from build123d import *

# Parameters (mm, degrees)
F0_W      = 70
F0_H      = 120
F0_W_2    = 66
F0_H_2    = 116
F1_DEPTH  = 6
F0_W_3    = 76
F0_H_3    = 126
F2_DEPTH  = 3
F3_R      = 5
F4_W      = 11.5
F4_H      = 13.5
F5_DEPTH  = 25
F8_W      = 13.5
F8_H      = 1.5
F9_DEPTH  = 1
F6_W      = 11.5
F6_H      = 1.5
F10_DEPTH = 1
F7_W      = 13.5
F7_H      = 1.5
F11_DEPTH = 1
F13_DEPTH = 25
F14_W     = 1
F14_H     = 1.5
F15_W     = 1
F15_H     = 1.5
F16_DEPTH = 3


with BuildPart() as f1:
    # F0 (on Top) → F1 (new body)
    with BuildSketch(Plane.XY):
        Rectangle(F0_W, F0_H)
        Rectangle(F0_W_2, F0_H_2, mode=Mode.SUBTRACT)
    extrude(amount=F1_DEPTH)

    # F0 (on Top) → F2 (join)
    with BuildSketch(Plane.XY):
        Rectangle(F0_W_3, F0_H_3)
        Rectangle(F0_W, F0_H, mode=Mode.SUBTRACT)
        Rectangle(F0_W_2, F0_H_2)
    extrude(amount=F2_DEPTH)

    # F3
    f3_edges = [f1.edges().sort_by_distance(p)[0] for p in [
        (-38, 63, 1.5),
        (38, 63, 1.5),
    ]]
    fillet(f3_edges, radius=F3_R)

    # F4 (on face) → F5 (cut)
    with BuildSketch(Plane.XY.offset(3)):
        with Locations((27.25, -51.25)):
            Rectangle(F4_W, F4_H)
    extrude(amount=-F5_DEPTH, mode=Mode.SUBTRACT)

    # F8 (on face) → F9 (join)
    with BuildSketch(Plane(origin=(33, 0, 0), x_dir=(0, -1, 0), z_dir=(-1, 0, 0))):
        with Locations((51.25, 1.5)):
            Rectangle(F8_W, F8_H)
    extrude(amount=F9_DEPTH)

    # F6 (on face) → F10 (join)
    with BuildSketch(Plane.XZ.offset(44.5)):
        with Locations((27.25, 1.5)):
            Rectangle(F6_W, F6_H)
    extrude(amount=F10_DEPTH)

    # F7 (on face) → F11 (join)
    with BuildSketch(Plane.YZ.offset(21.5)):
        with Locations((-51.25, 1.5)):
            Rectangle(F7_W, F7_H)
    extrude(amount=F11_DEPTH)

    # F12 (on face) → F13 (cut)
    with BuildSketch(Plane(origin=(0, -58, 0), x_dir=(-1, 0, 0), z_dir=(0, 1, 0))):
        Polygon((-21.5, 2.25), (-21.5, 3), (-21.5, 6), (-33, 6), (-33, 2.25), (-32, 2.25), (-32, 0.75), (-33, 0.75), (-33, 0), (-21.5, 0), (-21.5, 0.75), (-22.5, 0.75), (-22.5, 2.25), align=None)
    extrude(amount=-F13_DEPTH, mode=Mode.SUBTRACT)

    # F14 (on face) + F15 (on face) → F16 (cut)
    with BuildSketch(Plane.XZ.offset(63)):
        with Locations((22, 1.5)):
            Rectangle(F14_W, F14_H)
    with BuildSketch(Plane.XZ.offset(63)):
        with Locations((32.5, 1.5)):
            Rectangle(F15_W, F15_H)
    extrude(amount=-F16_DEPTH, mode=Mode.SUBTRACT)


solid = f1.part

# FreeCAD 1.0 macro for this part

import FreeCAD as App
import Part
import Sketcher

V = App.Vector


def edges_at(feature, points):
    """Names of the edges that pass closest to the given points."""
    edges = feature.Shape.Edges
    near = lambda p: min(range(len(edges)), key=lambda i: edges[i].distToShape(Part.Vertex(*p))[0])
    return sorted({f"Edge{near(p) + 1}" for p in points})

doc = App.newDocument("Part")
body = doc.addObject("PartDesign::Body", "Body")

sketch1 = body.newObject("Sketcher::SketchObject", "Sketch")
sketch1.AttachmentSupport = (doc.getObject("XY_Plane"), [""])
sketch1.MapMode = "FlatFace"
sketch1.addGeometry([
    Part.LineSegment(V(-35, 60, 0), V(-35, -60, 0)),
    Part.LineSegment(V(-35, -60, 0), V(35, -60, 0)),
    Part.LineSegment(V(35, -60, 0), V(35, 60, 0)),
    Part.LineSegment(V(35, 60, 0), V(-35, 60, 0)),
    Part.LineSegment(V(33, -58, 0), V(-33, -58, 0)),
    Part.LineSegment(V(-33, -58, 0), V(-33, 58, 0)),
    Part.LineSegment(V(-33, 58, 0), V(33, 58, 0)),
    Part.LineSegment(V(33, 58, 0), V(33, -58, 0)),
], False)
sketch1.addConstraint([
    Sketcher.Constraint("Coincident", 0, 2, 1, 1),
    Sketcher.Constraint("Coincident", 1, 2, 2, 1),
    Sketcher.Constraint("Coincident", 2, 2, 3, 1),
    Sketcher.Constraint("Coincident", 3, 2, 0, 1),
    Sketcher.Constraint("Coincident", 4, 2, 5, 1),
    Sketcher.Constraint("Coincident", 5, 2, 6, 1),
    Sketcher.Constraint("Coincident", 6, 2, 7, 1),
    Sketcher.Constraint("Coincident", 7, 2, 4, 1),
    Sketcher.Constraint("Vertical", 0),
    Sketcher.Constraint("Horizontal", 1),
    Sketcher.Constraint("Vertical", 2),
    Sketcher.Constraint("Horizontal", 3),
    Sketcher.Constraint("Horizontal", 4),
    Sketcher.Constraint("Vertical", 5),
    Sketcher.Constraint("Horizontal", 6),
    Sketcher.Constraint("Vertical", 7),
    Sketcher.Constraint("Symmetric", 0, 2, 2, 2, -1, 1),
    Sketcher.Constraint("Symmetric", 4, 2, 6, 2, -1, 1),
    Sketcher.Constraint("DistanceX", 1, 1, 1, 2, 70.0),
    Sketcher.Constraint("DistanceX", 4, 2, 4, 1, 66.0),
    Sketcher.Constraint("DistanceY", 0, 2, 0, 1, 120.0),
    Sketcher.Constraint("DistanceY", 5, 1, 5, 2, 116.0),
])
pad1 = body.newObject("PartDesign::Pad", "Pad")
pad1.Profile = sketch1
pad1.Length = 6

sketch2 = body.newObject("Sketcher::SketchObject", "Sketch001")
sketch2.AttachmentSupport = (doc.getObject("XY_Plane"), [""])
sketch2.MapMode = "FlatFace"
sketch2.addGeometry([
    Part.LineSegment(V(-38, 63, 0), V(-38, -63, 0)),
    Part.LineSegment(V(-38, -63, 0), V(38, -63, 0)),
    Part.LineSegment(V(38, -63, 0), V(38, 63, 0)),
    Part.LineSegment(V(38, 63, 0), V(-38, 63, 0)),
    Part.LineSegment(V(35, -60, 0), V(-35, -60, 0)),
    Part.LineSegment(V(-35, -60, 0), V(-35, 60, 0)),
    Part.LineSegment(V(-35, 60, 0), V(35, 60, 0)),
    Part.LineSegment(V(35, 60, 0), V(35, -60, 0)),
    Part.LineSegment(V(-33, 58, 0), V(-33, -58, 0)),
    Part.LineSegment(V(-33, -58, 0), V(33, -58, 0)),
    Part.LineSegment(V(33, -58, 0), V(33, 58, 0)),
    Part.LineSegment(V(33, 58, 0), V(-33, 58, 0)),
], False)
sketch2.addConstraint([
    Sketcher.Constraint("Coincident", 0, 2, 1, 1),
    Sketcher.Constraint("Coincident", 1, 2, 2, 1),
    Sketcher.Constraint("Coincident", 2, 2, 3, 1),
    Sketcher.Constraint("Coincident", 3, 2, 0, 1),
    Sketcher.Constraint("Coincident", 4, 2, 5, 1),
    Sketcher.Constraint("Coincident", 5, 2, 6, 1),
    Sketcher.Constraint("Coincident", 6, 2, 7, 1),
    Sketcher.Constraint("Coincident", 7, 2, 4, 1),
    Sketcher.Constraint("Coincident", 8, 2, 9, 1),
    Sketcher.Constraint("Coincident", 9, 2, 10, 1),
    Sketcher.Constraint("Coincident", 10, 2, 11, 1),
    Sketcher.Constraint("Coincident", 11, 2, 8, 1),
    Sketcher.Constraint("Vertical", 0),
    Sketcher.Constraint("Horizontal", 1),
    Sketcher.Constraint("Vertical", 2),
    Sketcher.Constraint("Horizontal", 3),
    Sketcher.Constraint("Horizontal", 4),
    Sketcher.Constraint("Vertical", 5),
    Sketcher.Constraint("Horizontal", 6),
    Sketcher.Constraint("Vertical", 7),
    Sketcher.Constraint("Vertical", 8),
    Sketcher.Constraint("Horizontal", 9),
    Sketcher.Constraint("Vertical", 10),
    Sketcher.Constraint("Horizontal", 11),
    Sketcher.Constraint("Symmetric", 0, 2, 2, 2, -1, 1),
    Sketcher.Constraint("Symmetric", 4, 2, 6, 2, -1, 1),
    Sketcher.Constraint("Symmetric", 8, 2, 10, 2, -1, 1),
    Sketcher.Constraint("DistanceX", 1, 1, 1, 2, 76.0),
    Sketcher.Constraint("DistanceX", 4, 2, 4, 1, 70.0),
    Sketcher.Constraint("DistanceX", 9, 1, 9, 2, 66.0),
    Sketcher.Constraint("DistanceY", 0, 2, 0, 1, 126.0),
    Sketcher.Constraint("DistanceY", 5, 1, 5, 2, 120.0),
    Sketcher.Constraint("DistanceY", 8, 2, 8, 1, 116.0),
])
pad2 = body.newObject("PartDesign::Pad", "Pad001")
pad2.Profile = sketch2
pad2.Length = 3
doc.recompute()

fillet = body.newObject("PartDesign::Fillet", "Fillet")
fillet.Base = (pad2, edges_at(pad2, [(-38, 63, 1.5), (38, 63, 1.5)]))
fillet.Radius = 5

sketch3 = body.newObject("Sketcher::SketchObject", "Sketch002")
sketch3.AttachmentSupport = (doc.getObject("XY_Plane"), [""])
sketch3.MapMode = "FlatFace"
sketch3.AttachmentOffset = App.Placement(V(0, 0, 3), App.Rotation())
sketch3.addGeometry([
    Part.LineSegment(V(22, -44, 0), V(22, -58, 0)),
    Part.LineSegment(V(22, -58, 0), V(33, -58, 0)),
    Part.LineSegment(V(33, -58, 0), V(33, -44, 0)),
    Part.LineSegment(V(33, -44, 0), V(22, -44, 0)),
], False)
sketch3.addConstraint([
    Sketcher.Constraint("Coincident", 0, 2, 1, 1),
    Sketcher.Constraint("Coincident", 1, 2, 2, 1),
    Sketcher.Constraint("Coincident", 2, 2, 3, 1),
    Sketcher.Constraint("Coincident", 3, 2, 0, 1),
    Sketcher.Constraint("Vertical", 0),
    Sketcher.Constraint("Horizontal", 1),
    Sketcher.Constraint("Vertical", 2),
    Sketcher.Constraint("Horizontal", 3),
    Sketcher.Constraint("DistanceX", 1, 1, 1, 2, 11.5),
    Sketcher.Constraint("DistanceY", 0, 2, 0, 1, 13.5),
    Sketcher.Constraint("DistanceY", 0, 2, -1, 1, 58.0),
    Sketcher.Constraint("DistanceX", -1, 1, 1, 2, 33.0),
])
pocket1 = body.newObject("PartDesign::Pocket", "Pocket")
pocket1.Profile = sketch3
pocket1.Length = 25

sketch4 = body.newObject("Sketcher::SketchObject", "Sketch003")
sketch4.AttachmentSupport = (doc.getObject("YZ_Plane"), [""])
sketch4.MapMode = "FlatFace"
sketch4.AttachmentOffset = App.Placement(V(0, 0, 33), App.Rotation())
sketch4.addGeometry([
    Part.LineSegment(V(-44.5, 2.2, 0), V(-44.5, 0.8, 0)),
    Part.LineSegment(V(-44.5, 0.8, 0), V(-58, 0.8, 0)),
    Part.LineSegment(V(-58, 0.8, 0), V(-58, 2.2, 0)),
    Part.LineSegment(V(-58, 2.2, 0), V(-44.5, 2.2, 0)),
], False)
sketch4.addConstraint([
    Sketcher.Constraint("Coincident", 0, 2, 1, 1),
    Sketcher.Constraint("Coincident", 1, 2, 2, 1),
    Sketcher.Constraint("Coincident", 2, 2, 3, 1),
    Sketcher.Constraint("Coincident", 3, 2, 0, 1),
    Sketcher.Constraint("Vertical", 0),
    Sketcher.Constraint("Horizontal", 1),
    Sketcher.Constraint("Vertical", 2),
    Sketcher.Constraint("Horizontal", 3),
    Sketcher.Constraint("DistanceX", 1, 2, 1, 1, 13.5),
    Sketcher.Constraint("DistanceY", 0, 2, 0, 1, 1.5),
    Sketcher.Constraint("DistanceX", 1, 2, -1, 1, 58.0),
    Sketcher.Constraint("DistanceY", -1, 1, 0, 2, 0.75),
])
pad3 = body.newObject("PartDesign::Pad", "Pad002")
pad3.Profile = sketch4
pad3.Length = 1
pad3.Reversed = True

sketch5 = body.newObject("Sketcher::SketchObject", "Sketch004")
sketch5.AttachmentSupport = (doc.getObject("XZ_Plane"), [""])
sketch5.MapMode = "FlatFace"
sketch5.AttachmentOffset = App.Placement(V(0, 0, 44.5), App.Rotation())
sketch5.addGeometry([
    Part.LineSegment(V(21.5, 2.2, 0), V(21.5, 0.8, 0)),
    Part.LineSegment(V(21.5, 0.8, 0), V(33, 0.8, 0)),
    Part.LineSegment(V(33, 0.8, 0), V(33, 2.2, 0)),
    Part.LineSegment(V(33, 2.2, 0), V(21.5, 2.2, 0)),
], False)
sketch5.addConstraint([
    Sketcher.Constraint("Coincident", 0, 2, 1, 1),
    Sketcher.Constraint("Coincident", 1, 2, 2, 1),
    Sketcher.Constraint("Coincident", 2, 2, 3, 1),
    Sketcher.Constraint("Coincident", 3, 2, 0, 1),
    Sketcher.Constraint("Vertical", 0),
    Sketcher.Constraint("Horizontal", 1),
    Sketcher.Constraint("Vertical", 2),
    Sketcher.Constraint("Horizontal", 3),
    Sketcher.Constraint("DistanceX", 1, 1, 1, 2, 11.5),
    Sketcher.Constraint("DistanceY", 0, 2, 0, 1, 1.5),
    Sketcher.Constraint("DistanceX", -1, 1, 1, 2, 33.0),
    Sketcher.Constraint("DistanceY", -1, 1, 0, 2, 0.75),
])
pad4 = body.newObject("PartDesign::Pad", "Pad003")
pad4.Profile = sketch5
pad4.Length = 1

sketch6 = body.newObject("Sketcher::SketchObject", "Sketch005")
sketch6.AttachmentSupport = (doc.getObject("YZ_Plane"), [""])
sketch6.MapMode = "FlatFace"
sketch6.AttachmentOffset = App.Placement(V(0, 0, 21.5), App.Rotation())
sketch6.addGeometry([
    Part.LineSegment(V(-58, 2.2, 0), V(-58, 0.8, 0)),
    Part.LineSegment(V(-58, 0.8, 0), V(-44.5, 0.8, 0)),
    Part.LineSegment(V(-44.5, 0.8, 0), V(-44.5, 2.2, 0)),
    Part.LineSegment(V(-44.5, 2.2, 0), V(-58, 2.2, 0)),
], False)
sketch6.addConstraint([
    Sketcher.Constraint("Coincident", 0, 2, 1, 1),
    Sketcher.Constraint("Coincident", 1, 2, 2, 1),
    Sketcher.Constraint("Coincident", 2, 2, 3, 1),
    Sketcher.Constraint("Coincident", 3, 2, 0, 1),
    Sketcher.Constraint("Vertical", 0),
    Sketcher.Constraint("Horizontal", 1),
    Sketcher.Constraint("Vertical", 2),
    Sketcher.Constraint("Horizontal", 3),
    Sketcher.Constraint("DistanceX", 1, 1, 1, 2, 13.5),
    Sketcher.Constraint("DistanceY", 0, 2, 0, 1, 1.5),
    Sketcher.Constraint("DistanceX", 0, 2, -1, 1, 58.0),
    Sketcher.Constraint("DistanceY", -1, 1, 0, 2, 0.75),
])
pad5 = body.newObject("PartDesign::Pad", "Pad004")
pad5.Profile = sketch6
pad5.Length = 1

sketch7 = body.newObject("Sketcher::SketchObject", "Sketch006")
sketch7.AttachmentSupport = (doc.getObject("XZ_Plane"), [""])
sketch7.MapMode = "FlatFace"
sketch7.AttachmentOffset = App.Placement(V(0, 0, 58), App.Rotation())
sketch7.addGeometry([
    Part.LineSegment(V(21.5, 2.2, 0), V(21.5, 6, 0)),
    Part.LineSegment(V(21.5, 6, 0), V(33, 6, 0)),
    Part.LineSegment(V(33, 6, 0), V(33, 2.2, 0)),
    Part.LineSegment(V(33, 2.2, 0), V(32, 2.2, 0)),
    Part.LineSegment(V(32, 2.2, 0), V(32, 0.8, 0)),
    Part.LineSegment(V(32, 0.8, 0), V(33, 0.8, 0)),
    Part.LineSegment(V(33, 0.8, 0), V(33, 0, 0)),
    Part.LineSegment(V(33, 0, 0), V(21.5, 0, 0)),
    Part.LineSegment(V(21.5, 0, 0), V(21.5, 0.8, 0)),
    Part.LineSegment(V(21.5, 0.8, 0), V(22.5, 0.8, 0)),
    Part.LineSegment(V(22.5, 0.8, 0), V(22.5, 2.2, 0)),
    Part.LineSegment(V(22.5, 2.2, 0), V(21.5, 2.2, 0)),
], False)
sketch7.addConstraint([
    Sketcher.Constraint("Coincident", 0, 2, 1, 1),
    Sketcher.Constraint("Coincident", 1, 2, 2, 1),
    Sketcher.Constraint("Coincident", 2, 2, 3, 1),
    Sketcher.Constraint("Coincident", 3, 2, 4, 1),
    Sketcher.Constraint("Coincident", 4, 2, 5, 1),
    Sketcher.Constraint("Coincident", 5, 2, 6, 1),
    Sketcher.Constraint("Coincident", 6, 2, 7, 1),
    Sketcher.Constraint("Coincident", 7, 2, 8, 1),
    Sketcher.Constraint("Coincident", 8, 2, 9, 1),
    Sketcher.Constraint("Coincident", 9, 2, 10, 1),
    Sketcher.Constraint("Coincident", 10, 2, 11, 1),
    Sketcher.Constraint("Coincident", 11, 2, 0, 1),
    Sketcher.Constraint("Vertical", 0),
    Sketcher.Constraint("Horizontal", 1),
    Sketcher.Constraint("Vertical", 2),
    Sketcher.Constraint("Horizontal", 3),
    Sketcher.Constraint("Vertical", 4),
    Sketcher.Constraint("Horizontal", 5),
    Sketcher.Constraint("Vertical", 6),
    Sketcher.Constraint("Horizontal", 7),
    Sketcher.Constraint("Vertical", 8),
    Sketcher.Constraint("Horizontal", 9),
    Sketcher.Constraint("Vertical", 10),
    Sketcher.Constraint("Horizontal", 11),
    Sketcher.Constraint("PointOnObject", 6, 2, -1),
    Sketcher.Constraint("Horizontal", 5, 2, 8, 2),
    Sketcher.Constraint("Horizontal", 3, 2, 10, 2),
    Sketcher.Constraint("Vertical", 2, 2, 5, 2),
    Sketcher.Constraint("Vertical", 0, 2, 7, 2),
    Sketcher.Constraint("Equal", 5, 9),
    Sketcher.Constraint("DistanceX", 3, 2, 3, 1, 1.0),
    Sketcher.Constraint("DistanceX", 1, 1, 1, 2, 11.5),
    Sketcher.Constraint("DistanceY", 4, 2, 4, 1, 1.5),
    Sketcher.Constraint("DistanceY", -1, 1, 0, 2, 6.0),
    Sketcher.Constraint("DistanceX", -1, 1, 1, 2, 33.0),
    Sketcher.Constraint("DistanceY", 0, 1, 0, 2, 3.75),
])
pocket2 = body.newObject("PartDesign::Pocket", "Pocket001")
pocket2.Profile = sketch7
pocket2.Length = 25
pocket2.Reversed = True

sketch8 = body.newObject("Sketcher::SketchObject", "Sketch007")
sketch8.AttachmentSupport = (doc.getObject("XZ_Plane"), [""])
sketch8.MapMode = "FlatFace"
sketch8.AttachmentOffset = App.Placement(V(0, 0, 63), App.Rotation())
sketch8.addGeometry([
    Part.LineSegment(V(21.5, 2.2, 0), V(21.5, 0.8, 0)),
    Part.LineSegment(V(21.5, 0.8, 0), V(22.5, 0.8, 0)),
    Part.LineSegment(V(22.5, 0.8, 0), V(22.5, 2.2, 0)),
    Part.LineSegment(V(22.5, 2.2, 0), V(21.5, 2.2, 0)),
    Part.LineSegment(V(32, 2.2, 0), V(32, 0.8, 0)),
    Part.LineSegment(V(32, 0.8, 0), V(33, 0.8, 0)),
    Part.LineSegment(V(33, 0.8, 0), V(33, 2.2, 0)),
    Part.LineSegment(V(33, 2.2, 0), V(32, 2.2, 0)),
], False)
sketch8.addConstraint([
    Sketcher.Constraint("Coincident", 0, 2, 1, 1),
    Sketcher.Constraint("Coincident", 1, 2, 2, 1),
    Sketcher.Constraint("Coincident", 2, 2, 3, 1),
    Sketcher.Constraint("Coincident", 3, 2, 0, 1),
    Sketcher.Constraint("Coincident", 4, 2, 5, 1),
    Sketcher.Constraint("Coincident", 5, 2, 6, 1),
    Sketcher.Constraint("Coincident", 6, 2, 7, 1),
    Sketcher.Constraint("Coincident", 7, 2, 4, 1),
    Sketcher.Constraint("Vertical", 0),
    Sketcher.Constraint("Horizontal", 1),
    Sketcher.Constraint("Vertical", 2),
    Sketcher.Constraint("Horizontal", 3),
    Sketcher.Constraint("Vertical", 4),
    Sketcher.Constraint("Horizontal", 5),
    Sketcher.Constraint("Vertical", 6),
    Sketcher.Constraint("Horizontal", 7),
    Sketcher.Constraint("Horizontal", 1, 2, 4, 2),
    Sketcher.Constraint("Horizontal", 3, 2, 6, 2),
    Sketcher.Constraint("Equal", 3, 5),
    Sketcher.Constraint("DistanceX", 1, 1, 1, 2, 1.0),
    Sketcher.Constraint("DistanceY", 0, 2, 0, 1, 1.5),
    Sketcher.Constraint("DistanceX", -1, 1, 4, 2, 32.0),
    Sketcher.Constraint("DistanceX", -1, 1, 0, 2, 21.5),
    Sketcher.Constraint("DistanceY", -1, 1, 0, 2, 0.75),
])
pocket3 = body.newObject("PartDesign::Pocket", "Pocket002")
pocket3.Profile = sketch8
pocket3.Length = 3

doc.recompute()
